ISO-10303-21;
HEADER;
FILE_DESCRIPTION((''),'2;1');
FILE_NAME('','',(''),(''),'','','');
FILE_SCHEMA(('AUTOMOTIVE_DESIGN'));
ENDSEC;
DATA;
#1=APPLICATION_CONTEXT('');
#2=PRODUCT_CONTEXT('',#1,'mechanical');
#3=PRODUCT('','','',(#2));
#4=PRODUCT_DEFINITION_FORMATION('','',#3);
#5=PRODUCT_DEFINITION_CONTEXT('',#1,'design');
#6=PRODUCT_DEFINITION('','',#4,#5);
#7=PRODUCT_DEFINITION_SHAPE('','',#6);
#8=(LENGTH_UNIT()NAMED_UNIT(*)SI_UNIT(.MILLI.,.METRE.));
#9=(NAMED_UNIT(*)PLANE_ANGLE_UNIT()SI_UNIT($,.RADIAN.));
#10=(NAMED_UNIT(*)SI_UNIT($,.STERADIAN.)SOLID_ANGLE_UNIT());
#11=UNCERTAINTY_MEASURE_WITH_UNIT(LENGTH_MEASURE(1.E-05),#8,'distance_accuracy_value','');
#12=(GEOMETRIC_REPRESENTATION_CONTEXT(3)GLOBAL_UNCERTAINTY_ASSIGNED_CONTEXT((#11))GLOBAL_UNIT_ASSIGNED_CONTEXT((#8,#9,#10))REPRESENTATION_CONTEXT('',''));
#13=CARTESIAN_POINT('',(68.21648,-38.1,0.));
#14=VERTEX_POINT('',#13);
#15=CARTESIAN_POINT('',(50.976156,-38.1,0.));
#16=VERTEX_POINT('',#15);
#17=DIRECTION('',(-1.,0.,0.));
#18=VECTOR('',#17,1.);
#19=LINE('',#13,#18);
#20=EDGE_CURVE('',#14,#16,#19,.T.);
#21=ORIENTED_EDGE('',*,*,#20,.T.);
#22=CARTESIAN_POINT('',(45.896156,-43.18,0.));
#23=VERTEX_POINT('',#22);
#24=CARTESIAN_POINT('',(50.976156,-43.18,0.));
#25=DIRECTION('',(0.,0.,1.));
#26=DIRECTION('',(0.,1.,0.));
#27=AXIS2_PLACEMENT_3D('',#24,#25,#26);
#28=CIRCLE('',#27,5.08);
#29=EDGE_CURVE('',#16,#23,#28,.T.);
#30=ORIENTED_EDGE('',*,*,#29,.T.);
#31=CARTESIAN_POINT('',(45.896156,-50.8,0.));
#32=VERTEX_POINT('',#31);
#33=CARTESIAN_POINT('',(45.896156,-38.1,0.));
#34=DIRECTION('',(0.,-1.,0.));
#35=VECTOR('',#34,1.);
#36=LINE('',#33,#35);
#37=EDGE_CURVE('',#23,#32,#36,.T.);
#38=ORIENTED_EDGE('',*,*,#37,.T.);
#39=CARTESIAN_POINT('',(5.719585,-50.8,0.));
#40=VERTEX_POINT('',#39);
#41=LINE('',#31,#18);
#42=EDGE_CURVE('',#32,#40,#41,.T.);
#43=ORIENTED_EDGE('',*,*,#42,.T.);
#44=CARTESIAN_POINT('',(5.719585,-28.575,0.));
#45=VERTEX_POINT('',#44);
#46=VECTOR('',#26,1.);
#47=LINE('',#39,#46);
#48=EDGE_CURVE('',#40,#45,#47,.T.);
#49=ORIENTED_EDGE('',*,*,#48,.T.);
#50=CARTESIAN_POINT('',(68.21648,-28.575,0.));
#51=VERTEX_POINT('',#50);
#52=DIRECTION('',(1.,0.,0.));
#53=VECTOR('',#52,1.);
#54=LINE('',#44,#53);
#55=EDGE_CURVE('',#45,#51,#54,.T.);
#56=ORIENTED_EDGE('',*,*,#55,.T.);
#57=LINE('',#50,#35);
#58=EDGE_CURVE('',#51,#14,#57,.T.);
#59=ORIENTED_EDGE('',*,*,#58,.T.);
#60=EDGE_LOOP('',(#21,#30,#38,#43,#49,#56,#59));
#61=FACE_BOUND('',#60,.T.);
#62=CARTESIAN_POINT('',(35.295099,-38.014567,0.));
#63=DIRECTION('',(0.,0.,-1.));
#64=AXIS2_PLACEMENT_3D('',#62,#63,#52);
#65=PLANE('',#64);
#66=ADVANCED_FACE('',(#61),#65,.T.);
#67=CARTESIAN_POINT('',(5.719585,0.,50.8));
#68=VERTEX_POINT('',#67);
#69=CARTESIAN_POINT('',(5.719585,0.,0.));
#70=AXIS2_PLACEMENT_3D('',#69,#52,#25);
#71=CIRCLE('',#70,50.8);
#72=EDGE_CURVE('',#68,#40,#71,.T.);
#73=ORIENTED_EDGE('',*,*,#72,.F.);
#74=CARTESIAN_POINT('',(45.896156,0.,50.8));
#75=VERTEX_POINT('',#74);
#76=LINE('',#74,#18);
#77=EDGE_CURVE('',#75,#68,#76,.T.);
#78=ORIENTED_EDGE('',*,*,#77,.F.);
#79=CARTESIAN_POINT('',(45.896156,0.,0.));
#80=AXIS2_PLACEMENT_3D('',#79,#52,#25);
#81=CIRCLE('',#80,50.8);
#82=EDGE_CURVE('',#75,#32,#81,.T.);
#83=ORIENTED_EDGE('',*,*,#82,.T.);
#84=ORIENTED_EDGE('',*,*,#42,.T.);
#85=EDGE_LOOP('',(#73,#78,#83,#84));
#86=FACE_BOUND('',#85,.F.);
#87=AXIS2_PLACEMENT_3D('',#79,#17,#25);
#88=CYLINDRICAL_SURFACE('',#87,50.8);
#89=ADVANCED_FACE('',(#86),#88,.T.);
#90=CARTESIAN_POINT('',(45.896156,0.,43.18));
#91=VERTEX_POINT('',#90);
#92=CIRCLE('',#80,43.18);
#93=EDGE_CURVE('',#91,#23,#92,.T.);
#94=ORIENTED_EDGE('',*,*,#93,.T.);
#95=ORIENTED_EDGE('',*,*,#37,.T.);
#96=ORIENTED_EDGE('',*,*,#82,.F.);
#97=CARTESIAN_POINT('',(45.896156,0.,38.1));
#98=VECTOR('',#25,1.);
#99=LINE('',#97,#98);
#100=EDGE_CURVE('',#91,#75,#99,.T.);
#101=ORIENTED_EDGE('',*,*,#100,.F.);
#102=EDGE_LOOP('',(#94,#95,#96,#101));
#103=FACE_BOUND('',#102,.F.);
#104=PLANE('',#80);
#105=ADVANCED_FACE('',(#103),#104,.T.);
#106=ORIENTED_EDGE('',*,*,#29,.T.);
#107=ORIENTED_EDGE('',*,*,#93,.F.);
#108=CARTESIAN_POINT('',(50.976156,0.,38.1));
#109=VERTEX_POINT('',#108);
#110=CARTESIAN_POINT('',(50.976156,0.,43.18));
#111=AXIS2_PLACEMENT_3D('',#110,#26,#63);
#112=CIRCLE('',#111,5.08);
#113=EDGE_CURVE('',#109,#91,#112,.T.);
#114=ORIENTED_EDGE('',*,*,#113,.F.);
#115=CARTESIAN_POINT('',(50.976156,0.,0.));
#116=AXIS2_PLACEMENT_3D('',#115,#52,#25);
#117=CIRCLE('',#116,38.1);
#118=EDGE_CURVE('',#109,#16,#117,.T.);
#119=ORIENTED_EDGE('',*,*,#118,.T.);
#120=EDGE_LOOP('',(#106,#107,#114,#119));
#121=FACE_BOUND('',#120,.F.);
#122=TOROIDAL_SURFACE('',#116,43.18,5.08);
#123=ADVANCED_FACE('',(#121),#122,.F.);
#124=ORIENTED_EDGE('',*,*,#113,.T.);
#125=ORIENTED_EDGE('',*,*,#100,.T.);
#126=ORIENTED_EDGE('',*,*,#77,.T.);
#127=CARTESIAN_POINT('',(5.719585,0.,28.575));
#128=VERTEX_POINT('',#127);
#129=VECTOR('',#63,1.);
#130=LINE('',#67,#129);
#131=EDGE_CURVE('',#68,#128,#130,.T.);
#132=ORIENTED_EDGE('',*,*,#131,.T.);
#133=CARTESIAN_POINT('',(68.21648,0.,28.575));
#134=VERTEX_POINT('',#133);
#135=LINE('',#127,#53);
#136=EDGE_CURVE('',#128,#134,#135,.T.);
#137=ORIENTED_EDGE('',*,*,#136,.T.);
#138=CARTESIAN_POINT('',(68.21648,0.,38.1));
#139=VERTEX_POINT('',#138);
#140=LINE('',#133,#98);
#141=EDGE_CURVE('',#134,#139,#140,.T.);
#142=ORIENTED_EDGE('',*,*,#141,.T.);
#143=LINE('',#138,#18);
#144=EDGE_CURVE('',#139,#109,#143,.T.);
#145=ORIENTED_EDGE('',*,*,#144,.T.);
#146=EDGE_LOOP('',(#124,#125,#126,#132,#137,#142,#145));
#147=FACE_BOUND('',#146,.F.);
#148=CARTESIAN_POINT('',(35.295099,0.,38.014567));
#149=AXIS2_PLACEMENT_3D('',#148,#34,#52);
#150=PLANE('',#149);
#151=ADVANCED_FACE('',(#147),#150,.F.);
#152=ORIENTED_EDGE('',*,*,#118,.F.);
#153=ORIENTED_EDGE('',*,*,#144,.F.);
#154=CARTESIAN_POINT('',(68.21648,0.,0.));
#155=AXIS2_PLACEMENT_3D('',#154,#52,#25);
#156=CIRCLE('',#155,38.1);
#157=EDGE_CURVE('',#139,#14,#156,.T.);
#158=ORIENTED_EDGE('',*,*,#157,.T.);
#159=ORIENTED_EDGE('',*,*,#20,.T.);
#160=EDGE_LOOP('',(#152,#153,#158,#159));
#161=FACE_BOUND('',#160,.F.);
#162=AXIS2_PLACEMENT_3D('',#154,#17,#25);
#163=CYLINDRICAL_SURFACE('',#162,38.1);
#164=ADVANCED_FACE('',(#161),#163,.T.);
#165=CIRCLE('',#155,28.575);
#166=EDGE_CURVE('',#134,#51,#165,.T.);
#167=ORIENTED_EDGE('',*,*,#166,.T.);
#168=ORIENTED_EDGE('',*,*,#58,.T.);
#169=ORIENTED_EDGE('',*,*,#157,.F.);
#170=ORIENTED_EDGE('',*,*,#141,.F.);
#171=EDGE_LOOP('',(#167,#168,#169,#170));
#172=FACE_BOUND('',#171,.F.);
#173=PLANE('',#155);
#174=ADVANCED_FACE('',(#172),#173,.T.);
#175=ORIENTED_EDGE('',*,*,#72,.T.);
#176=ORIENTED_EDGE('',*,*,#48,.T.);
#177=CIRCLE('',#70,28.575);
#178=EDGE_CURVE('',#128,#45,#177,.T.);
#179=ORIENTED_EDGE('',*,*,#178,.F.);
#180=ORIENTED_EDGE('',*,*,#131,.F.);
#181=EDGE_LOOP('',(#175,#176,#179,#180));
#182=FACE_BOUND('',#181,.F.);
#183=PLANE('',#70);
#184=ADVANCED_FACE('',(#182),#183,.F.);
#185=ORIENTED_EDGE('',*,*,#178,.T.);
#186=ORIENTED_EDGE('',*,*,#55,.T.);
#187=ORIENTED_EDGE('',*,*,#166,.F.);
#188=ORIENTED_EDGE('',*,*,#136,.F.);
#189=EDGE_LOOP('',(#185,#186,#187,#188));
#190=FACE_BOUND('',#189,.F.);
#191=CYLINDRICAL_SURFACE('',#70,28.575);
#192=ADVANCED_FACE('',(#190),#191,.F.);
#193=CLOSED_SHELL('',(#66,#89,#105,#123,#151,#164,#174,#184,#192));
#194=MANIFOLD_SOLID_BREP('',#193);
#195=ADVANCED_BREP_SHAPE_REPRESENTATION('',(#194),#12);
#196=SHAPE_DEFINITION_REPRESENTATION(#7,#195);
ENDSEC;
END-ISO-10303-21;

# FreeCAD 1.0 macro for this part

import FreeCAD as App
import Part
import Sketcher
Q = App.Units.Quantity


def edges_at(feature, points):
    """Names of the edges that pass closest to the given points."""
    edges = feature.Shape.Edges
    near = lambda p: min(range(len(edges)), key=lambda i: edges[i].distToShape(Part.Vertex(*p))[0])
    return sorted({f"Edge{near(p) + 1}" for p in points})


def add_polygon(sketch, points):
    """Adds a closed chain of lines whose ends are joined by coincident constraints."""
    first, n = sketch.GeometryCount, len(points)
    for a, b in zip(points, points[1:] + points[:1]):
        sketch.addGeometry(Part.LineSegment(App.Vector(*a, 0), App.Vector(*b, 0)), False)
    for i in range(n):
        sketch.addConstraint(Sketcher.Constraint("Coincident", first + i, 2, first + (i + 1) % n, 1))

doc = App.newDocument("Part")
body = doc.addObject("PartDesign::Body", "Body")

# Sketch on XZ plane
sketch1 = body.newObject("Sketcher::SketchObject", "Sketch")
sketch1.AttachmentSupport = (doc.getObject("XZ_Plane"), [""])
sketch1.MapMode = "FlatFace"
add_polygon(sketch1, [(46, 51), (6, 51), (6, 29), (68, 29), (68, 38), (46, 38)])  # lines 0-5
sketch1.addConstraint(Sketcher.Constraint("Horizontal", 0))
sketch1.addConstraint(Sketcher.Constraint("Vertical", 1))
sketch1.addConstraint(Sketcher.Constraint("Horizontal", 2))
sketch1.addConstraint(Sketcher.Constraint("Vertical", 3))
sketch1.addConstraint(Sketcher.Constraint("Horizontal", 4))
sketch1.addConstraint(Sketcher.Constraint("Vertical", 5))
sketch1.addConstraint(Sketcher.Constraint("DistanceY", 5, 1, 5, 2, Q("0.5 in")))
sketch1.addConstraint(Sketcher.Constraint("DistanceY", -1, 1, 0, 2, Q("2 in")))
sketch1.addConstraint(Sketcher.Constraint("DistanceY", 1, 2, 1, 1, Q("0.875 in")))
sketch1.addConstraint(Sketcher.Constraint("DistanceX", 0, 2, 0, 1, Q("40.176571 mm")))
sketch1.addConstraint(Sketcher.Constraint("DistanceX", 2, 1, 2, 2, Q("62.496895 mm")))
sketch1.addConstraint(Sketcher.Constraint("DistanceX", -1, 1, 2, 2, Q("68.21648 mm")))
revolution = body.newObject("PartDesign::Revolution", "Revolution")
revolution.Profile = sketch1
revolution.ReferenceAxis = (sketch1, ["H_Axis"])
revolution.Angle = 90
doc.recompute()

fillet = body.newObject("PartDesign::Fillet", "Fillet")
fillet.Base = (revolution, edges_at(revolution, [(45.896, -26.941, 26.941)]))
fillet.Radius = Q("0.2 in")

doc.recompute()
